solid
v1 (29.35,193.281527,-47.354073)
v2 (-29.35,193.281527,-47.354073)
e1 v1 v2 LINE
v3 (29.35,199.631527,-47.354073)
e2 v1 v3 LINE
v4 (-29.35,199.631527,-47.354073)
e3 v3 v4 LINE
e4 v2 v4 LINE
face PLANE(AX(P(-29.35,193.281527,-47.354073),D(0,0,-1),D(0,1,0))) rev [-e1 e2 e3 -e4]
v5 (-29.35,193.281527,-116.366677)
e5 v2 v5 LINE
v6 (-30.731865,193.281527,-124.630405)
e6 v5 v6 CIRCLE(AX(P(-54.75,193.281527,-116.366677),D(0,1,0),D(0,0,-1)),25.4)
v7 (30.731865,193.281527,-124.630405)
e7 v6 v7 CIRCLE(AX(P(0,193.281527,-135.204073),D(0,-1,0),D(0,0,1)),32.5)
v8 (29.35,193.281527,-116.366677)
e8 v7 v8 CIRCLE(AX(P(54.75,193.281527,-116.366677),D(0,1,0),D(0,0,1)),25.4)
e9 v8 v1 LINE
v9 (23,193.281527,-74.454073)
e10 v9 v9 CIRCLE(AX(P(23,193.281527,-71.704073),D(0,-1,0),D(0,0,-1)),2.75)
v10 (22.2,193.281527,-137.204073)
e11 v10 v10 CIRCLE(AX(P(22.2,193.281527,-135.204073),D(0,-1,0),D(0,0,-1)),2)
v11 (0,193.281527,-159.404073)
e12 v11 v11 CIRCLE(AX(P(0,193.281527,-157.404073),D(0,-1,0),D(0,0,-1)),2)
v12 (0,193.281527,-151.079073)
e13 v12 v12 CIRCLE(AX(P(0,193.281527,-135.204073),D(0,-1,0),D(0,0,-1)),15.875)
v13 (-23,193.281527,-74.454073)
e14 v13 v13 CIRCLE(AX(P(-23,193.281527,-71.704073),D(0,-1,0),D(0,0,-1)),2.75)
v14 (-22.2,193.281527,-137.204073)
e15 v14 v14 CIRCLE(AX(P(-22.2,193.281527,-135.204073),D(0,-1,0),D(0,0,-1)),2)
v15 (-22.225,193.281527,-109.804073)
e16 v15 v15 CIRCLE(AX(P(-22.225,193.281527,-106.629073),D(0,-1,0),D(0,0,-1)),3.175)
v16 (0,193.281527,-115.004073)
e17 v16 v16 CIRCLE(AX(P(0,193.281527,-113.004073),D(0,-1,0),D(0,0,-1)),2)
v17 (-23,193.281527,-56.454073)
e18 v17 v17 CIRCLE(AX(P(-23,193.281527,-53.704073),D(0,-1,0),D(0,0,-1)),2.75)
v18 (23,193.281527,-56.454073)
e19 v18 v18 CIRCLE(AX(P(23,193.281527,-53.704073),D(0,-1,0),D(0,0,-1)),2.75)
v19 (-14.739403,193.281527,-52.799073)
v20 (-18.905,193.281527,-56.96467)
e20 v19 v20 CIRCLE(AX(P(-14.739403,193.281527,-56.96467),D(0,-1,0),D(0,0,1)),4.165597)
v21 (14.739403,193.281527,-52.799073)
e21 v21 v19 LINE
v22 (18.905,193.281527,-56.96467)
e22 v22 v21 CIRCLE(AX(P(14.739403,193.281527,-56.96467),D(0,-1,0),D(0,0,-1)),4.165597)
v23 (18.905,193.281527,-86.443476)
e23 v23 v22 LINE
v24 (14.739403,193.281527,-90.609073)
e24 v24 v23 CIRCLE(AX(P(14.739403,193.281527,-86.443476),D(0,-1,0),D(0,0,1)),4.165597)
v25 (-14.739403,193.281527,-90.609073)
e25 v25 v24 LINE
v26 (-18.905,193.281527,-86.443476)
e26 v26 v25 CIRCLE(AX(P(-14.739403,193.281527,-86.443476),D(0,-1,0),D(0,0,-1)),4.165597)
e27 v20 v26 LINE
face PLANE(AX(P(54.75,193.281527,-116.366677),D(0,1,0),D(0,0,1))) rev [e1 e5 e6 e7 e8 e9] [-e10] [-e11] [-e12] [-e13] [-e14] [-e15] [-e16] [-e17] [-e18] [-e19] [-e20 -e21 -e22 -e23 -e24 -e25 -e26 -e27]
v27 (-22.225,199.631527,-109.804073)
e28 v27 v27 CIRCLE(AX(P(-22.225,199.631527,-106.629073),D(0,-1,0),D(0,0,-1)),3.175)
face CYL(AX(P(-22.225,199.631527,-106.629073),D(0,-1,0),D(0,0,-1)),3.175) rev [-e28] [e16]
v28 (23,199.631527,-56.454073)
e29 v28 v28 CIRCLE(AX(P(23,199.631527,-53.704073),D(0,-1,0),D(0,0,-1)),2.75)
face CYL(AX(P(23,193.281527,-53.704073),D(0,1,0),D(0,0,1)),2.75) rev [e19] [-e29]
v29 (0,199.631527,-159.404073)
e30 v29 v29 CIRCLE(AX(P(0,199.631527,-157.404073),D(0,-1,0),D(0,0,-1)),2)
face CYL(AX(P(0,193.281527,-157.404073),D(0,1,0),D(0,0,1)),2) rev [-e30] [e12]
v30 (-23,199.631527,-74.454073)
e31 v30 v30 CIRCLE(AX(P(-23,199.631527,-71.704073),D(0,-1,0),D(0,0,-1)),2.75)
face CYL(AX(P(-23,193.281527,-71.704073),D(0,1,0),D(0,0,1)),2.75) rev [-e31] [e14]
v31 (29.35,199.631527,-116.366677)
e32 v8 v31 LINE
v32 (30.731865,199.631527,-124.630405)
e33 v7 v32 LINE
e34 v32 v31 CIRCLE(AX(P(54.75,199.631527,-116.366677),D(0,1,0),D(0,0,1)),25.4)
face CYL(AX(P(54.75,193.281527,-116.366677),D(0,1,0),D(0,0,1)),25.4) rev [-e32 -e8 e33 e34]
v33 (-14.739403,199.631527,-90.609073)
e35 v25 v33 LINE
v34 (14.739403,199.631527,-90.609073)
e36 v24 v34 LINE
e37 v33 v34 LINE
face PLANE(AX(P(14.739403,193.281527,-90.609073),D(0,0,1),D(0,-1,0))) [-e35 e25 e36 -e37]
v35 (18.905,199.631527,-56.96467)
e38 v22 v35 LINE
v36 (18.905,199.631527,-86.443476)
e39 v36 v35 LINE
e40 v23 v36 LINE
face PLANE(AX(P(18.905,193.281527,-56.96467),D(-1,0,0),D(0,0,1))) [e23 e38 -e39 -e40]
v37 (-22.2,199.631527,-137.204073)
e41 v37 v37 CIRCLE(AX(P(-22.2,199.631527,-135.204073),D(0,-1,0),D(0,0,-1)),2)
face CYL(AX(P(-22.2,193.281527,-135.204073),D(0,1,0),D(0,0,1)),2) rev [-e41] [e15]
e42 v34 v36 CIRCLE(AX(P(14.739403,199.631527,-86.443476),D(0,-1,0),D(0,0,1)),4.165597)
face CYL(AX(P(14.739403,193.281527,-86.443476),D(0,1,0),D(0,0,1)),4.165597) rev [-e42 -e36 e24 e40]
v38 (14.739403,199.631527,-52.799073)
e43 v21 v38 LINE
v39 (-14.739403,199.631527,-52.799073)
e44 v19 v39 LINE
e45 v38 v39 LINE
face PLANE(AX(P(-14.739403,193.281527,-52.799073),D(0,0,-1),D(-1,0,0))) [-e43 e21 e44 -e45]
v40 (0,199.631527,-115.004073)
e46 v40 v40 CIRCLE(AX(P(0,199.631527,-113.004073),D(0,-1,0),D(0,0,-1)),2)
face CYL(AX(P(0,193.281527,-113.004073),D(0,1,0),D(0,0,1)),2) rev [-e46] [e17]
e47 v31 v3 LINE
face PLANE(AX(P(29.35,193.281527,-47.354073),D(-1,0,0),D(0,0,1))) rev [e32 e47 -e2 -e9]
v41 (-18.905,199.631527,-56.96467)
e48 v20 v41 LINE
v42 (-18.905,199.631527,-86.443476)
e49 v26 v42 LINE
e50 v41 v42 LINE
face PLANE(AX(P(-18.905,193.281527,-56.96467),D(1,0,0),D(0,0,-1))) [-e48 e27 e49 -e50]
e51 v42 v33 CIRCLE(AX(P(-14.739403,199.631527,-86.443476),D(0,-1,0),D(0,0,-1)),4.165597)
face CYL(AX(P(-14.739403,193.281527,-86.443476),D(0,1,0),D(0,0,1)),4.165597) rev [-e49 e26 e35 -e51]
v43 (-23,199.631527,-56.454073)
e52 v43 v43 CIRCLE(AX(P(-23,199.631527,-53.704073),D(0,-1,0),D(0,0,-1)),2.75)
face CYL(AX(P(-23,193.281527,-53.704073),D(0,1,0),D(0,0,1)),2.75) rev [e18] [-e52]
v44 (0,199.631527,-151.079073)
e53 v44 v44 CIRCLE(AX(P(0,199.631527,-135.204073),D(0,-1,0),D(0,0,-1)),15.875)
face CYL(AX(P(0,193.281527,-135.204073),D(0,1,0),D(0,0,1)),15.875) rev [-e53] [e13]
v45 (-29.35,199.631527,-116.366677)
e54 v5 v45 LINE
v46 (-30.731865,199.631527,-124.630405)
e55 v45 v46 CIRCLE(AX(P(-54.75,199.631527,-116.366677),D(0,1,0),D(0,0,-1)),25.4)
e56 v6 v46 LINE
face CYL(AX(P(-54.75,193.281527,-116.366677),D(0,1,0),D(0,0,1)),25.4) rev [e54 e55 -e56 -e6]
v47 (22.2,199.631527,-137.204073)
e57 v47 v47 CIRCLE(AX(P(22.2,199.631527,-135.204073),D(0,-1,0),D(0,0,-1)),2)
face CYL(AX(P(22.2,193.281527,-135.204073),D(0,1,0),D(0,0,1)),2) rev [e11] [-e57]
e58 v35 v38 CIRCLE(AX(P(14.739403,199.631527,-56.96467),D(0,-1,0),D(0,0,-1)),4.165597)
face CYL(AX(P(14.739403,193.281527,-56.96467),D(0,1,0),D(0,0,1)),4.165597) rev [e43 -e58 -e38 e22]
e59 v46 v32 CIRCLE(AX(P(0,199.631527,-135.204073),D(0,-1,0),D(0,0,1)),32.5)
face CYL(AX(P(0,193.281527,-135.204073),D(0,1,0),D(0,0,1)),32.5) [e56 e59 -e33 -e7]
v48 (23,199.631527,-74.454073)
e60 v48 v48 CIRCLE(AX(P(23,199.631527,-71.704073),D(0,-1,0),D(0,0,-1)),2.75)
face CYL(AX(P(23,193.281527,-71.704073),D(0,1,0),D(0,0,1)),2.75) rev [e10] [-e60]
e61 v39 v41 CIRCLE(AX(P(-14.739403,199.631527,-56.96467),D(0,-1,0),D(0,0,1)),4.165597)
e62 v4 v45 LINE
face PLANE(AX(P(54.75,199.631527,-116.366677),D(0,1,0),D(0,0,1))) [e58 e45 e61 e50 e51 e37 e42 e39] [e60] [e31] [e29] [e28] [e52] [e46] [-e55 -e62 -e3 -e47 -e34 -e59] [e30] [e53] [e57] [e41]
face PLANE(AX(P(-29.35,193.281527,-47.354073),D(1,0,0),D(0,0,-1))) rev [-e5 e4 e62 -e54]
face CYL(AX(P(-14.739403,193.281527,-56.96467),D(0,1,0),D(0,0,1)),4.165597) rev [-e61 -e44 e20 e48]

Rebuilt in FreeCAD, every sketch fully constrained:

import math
import FreeCAD as App
import Part
import Sketcher

V = App.Vector

doc = App.newDocument("Part")
params = doc.addObject("Spreadsheet::Sheet", "Params")
for row, (alias, value) in enumerate([
    ("sketch1_diameter", "4 mm"),
    ("sketch1_diameter2", "5.5 mm"),
    ("sketch1_radius", "25.4 mm"),
    ("sketch1_radius2", "32.5 mm"),
    ("sketch1_diameter3", "31.75 mm"),
    ("pad1_length", "6.35 mm"),
    ("sketch2_diameter", "6.35 mm"),
], start=1):
    params.set(f"A{row}", alias)
    params.set(f"B{row}", "=" + value)
    params.setAlias(f"B{row}", alias)

body = doc.addObject("PartDesign::Body", "Body")

sketch1 = body.newObject("Sketcher::SketchObject", "Sketch")
sketch1.AttachmentSupport = (doc.getObject("XZ_Plane"), [""])
sketch1.MapMode = "FlatFace"
sketch1.AttachmentOffset = App.Placement(V(0, 0, -199.631527), App.Rotation())
sketch1.addGeometry(Part.LineSegment(V(29.4, -47.4, 0), V(-29.4, -47.4, 0)), False)
sketch1.addGeometry(Part.LineSegment(V(-29.4, -47.4, 0), V(-29.4, -116.4, 0)), False)
sketch1.addGeometry(Part.ArcOfCircle(Part.Circle(V(-54.8, -116.4, 0), V(0, 0, 1), 25.4), math.radians(-18.99), math.radians(0)), False)
sketch1.addGeometry(Part.ArcOfCircle(Part.Circle(V(0, -135.2, 0), V(0, 0, 1), 32.5), math.radians(161), math.radians(379)), False)
sketch1.addGeometry(Part.ArcOfCircle(Part.Circle(V(54.8, -116.4, 0), V(0, 0, 1), 25.4), math.radians(-180), math.radians(-161.01)), False)
sketch1.addGeometry(Part.LineSegment(V(29.4, -116.4, 0), V(29.4, -47.4, 0)), False)
sketch1.addGeometry(Part.Circle(V(22.2, -135.2, 0), V(0, 0, 1), 2), False)
sketch1.addGeometry(Part.Circle(V(0, -157.4, 0), V(0, 0, 1), 2), False)
sketch1.addGeometry(Part.Circle(V(0, -135.2, 0), V(0, 0, 1), 15.9), False)
sketch1.addGeometry(Part.Circle(V(0, -113, 0), V(0, 0, 1), 2), False)
sketch1.addGeometry(Part.Circle(V(-22.2, -135.2, 0), V(0, 0, 1), 2), False)
sketch1.addGeometry(Part.Circle(V(23, -71.7, 0), V(0, 0, 1), 2.8), False)
sketch1.addGeometry(Part.Circle(V(23, -53.7, 0), V(0, 0, 1), 2.8), False)
sketch1.addGeometry(Part.LineSegment(V(-14.7, -52.8, 0), V(14.7, -52.8, 0)), False)
sketch1.addGeometry(Part.ArcOfCircle(Part.Circle(V(14.7, -57, 0), V(0, 0, 1), 4.2), math.radians(0), math.radians(90)), False)
sketch1.addGeometry(Part.LineSegment(V(18.9, -57, 0), V(18.9, -86.4, 0)), False)
sketch1.addGeometry(Part.ArcOfCircle(Part.Circle(V(14.7, -86.4, 0), V(0, 0, 1), 4.2), math.radians(-90), math.radians(0)), False)
sketch1.addGeometry(Part.LineSegment(V(14.7, -90.6, 0), V(-14.7, -90.6, 0)), False)
sketch1.addGeometry(Part.ArcOfCircle(Part.Circle(V(-14.7, -86.4, 0), V(0, 0, 1), 4.2), math.radians(-180), math.radians(-90)), False)
sketch1.addGeometry(Part.LineSegment(V(-18.9, -86.4, 0), V(-18.9, -57, 0)), False)
sketch1.addGeometry(Part.ArcOfCircle(Part.Circle(V(-14.7, -57, 0), V(0, 0, 1), 4.2), math.radians(90), math.radians(180)), False)
sketch1.addGeometry(Part.Circle(V(-23, -71.7, 0), V(0, 0, 1), 2.8), False)
sketch1.addGeometry(Part.Circle(V(-23, -53.7, 0), V(0, 0, 1), 2.8), False)
sketch1.addConstraint(Sketcher.Constraint("Coincident", 0, 2, 1, 1))
sketch1.addConstraint(Sketcher.Constraint("Tangent", 1, 2, 2, 2))
sketch1.addConstraint(Sketcher.Constraint("Tangent", 2, 1, 3, 1))
sketch1.addConstraint(Sketcher.Constraint("Tangent", 3, 2, 4, 2))
sketch1.addConstraint(Sketcher.Constraint("Tangent", 4, 1, 5, 1))
sketch1.addConstraint(Sketcher.Constraint("Coincident", 5, 2, 0, 1))
sketch1.addConstraint(Sketcher.Constraint("Tangent", 13, 2, 14, 2))
sketch1.addConstraint(Sketcher.Constraint("Tangent", 14, 1, 15, 1))
sketch1.addConstraint(Sketcher.Constraint("Tangent", 15, 2, 16, 2))
sketch1.addConstraint(Sketcher.Constraint("Tangent", 16, 1, 17, 1))
sketch1.addConstraint(Sketcher.Constraint("Tangent", 17, 2, 18, 2))
sketch1.addConstraint(Sketcher.Constraint("Tangent", 18, 1, 19, 1))
sketch1.addConstraint(Sketcher.Constraint("Tangent", 19, 2, 20, 2))
sketch1.addConstraint(Sketcher.Constraint("Tangent", 20, 1, 13, 1))
sketch1.addConstraint(Sketcher.Constraint("Horizontal", 0))
sketch1.addConstraint(Sketcher.Constraint("Vertical", 1))
sketch1.addConstraint(Sketcher.Constraint("Vertical", 5))
sketch1.addConstraint(Sketcher.Constraint("Horizontal", 13))
sketch1.addConstraint(Sketcher.Constraint("Vertical", 15))
sketch1.addConstraint(Sketcher.Constraint("Horizontal", 17))
sketch1.addConstraint(Sketcher.Constraint("Vertical", 19))
sketch1.addConstraint(Sketcher.Constraint("Coincident", 8, 3, 3, 3))
sketch1.addConstraint(Sketcher.Constraint("Equal", 2, 4))
sketch1.addConstraint(Sketcher.Constraint("Equal", 6, 7))
sketch1.addConstraint(Sketcher.Constraint("Equal", 7, 9))
sketch1.addConstraint(Sketcher.Constraint("Equal", 9, 10))
sketch1.addConstraint(Sketcher.Constraint("Equal", 11, 12))
sketch1.addConstraint(Sketcher.Constraint("Equal", 14, 16))
sketch1.addConstraint(Sketcher.Constraint("Equal", 16, 18))
sketch1.addConstraint(Sketcher.Constraint("Equal", 18, 20))
sketch1.addConstraint(Sketcher.Constraint("Equal", 12, 21))
sketch1.addConstraint(Sketcher.Constraint("Equal", 21, 22))
sketch1.addConstraint(Sketcher.Constraint("Symmetric", 2, 3, 4, 3, -2))
sketch1.addConstraint(Sketcher.Constraint("Symmetric", 6, 3, 10, 3, -2))
sketch1.addConstraint(Sketcher.Constraint("Symmetric", 11, 3, 21, 3, -2))
sketch1.addConstraint(Sketcher.Constraint("Symmetric", 12, 3, 22, 3, -2))
sketch1.addConstraint(Sketcher.Constraint("PointOnObject", 7, 3, -2))
sketch1.addConstraint(Sketcher.Constraint("PointOnObject", 9, 3, -2))
sketch1.addConstraint(Sketcher.Constraint("Horizontal", 3, 3, 6, 3))
sketch1.addConstraint(Sketcher.Constraint("Vertical", 11, 3, 12, 3))
sketch1.addConstraint(Sketcher.Constraint("Equal", 17, 15))
sketch1.addConstraint(Sketcher.Constraint("Diameter", 6, 4.0))
sketch1.addConstraint(Sketcher.Constraint("Diameter", 11, 5.5))
sketch1.addConstraint(Sketcher.Constraint("Radius", 2, 25.4))
sketch1.addConstraint(Sketcher.Constraint("Radius", 3, 32.5))
sketch1.addConstraint(Sketcher.Constraint("Diameter", 8, 31.75))
sketch1.addConstraint(Sketcher.Constraint("DistanceX", 0, 2, 0, 1, 58.7))
sketch1.addConstraint(Sketcher.Constraint("DistanceX", -1, 1, 11, 3, 23.0))
sketch1.addConstraint(Sketcher.Constraint("DistanceY", 11, 3, 12, 3, 18.0))
sketch1.addConstraint(Sketcher.Constraint("DistanceX", -1, 1, 6, 3, 22.2))
sketch1.addConstraint(Sketcher.Constraint("DistanceY", 7, 3, 3, 3, 22.2))
sketch1.addConstraint(Sketcher.Constraint("DistanceY", 3, 3, 9, 3, 22.2))
sketch1.addConstraint(Sketcher.Constraint("DistanceY", 9, 3, 11, 3, 41.3))
sketch1.addConstraint(Sketcher.Constraint("DistanceY", 22, 3, 0, 2, 6.35))
sketch1.addConstraint(Sketcher.Constraint("DistanceX", -1, 1, 14, 1, 18.905))
sketch1.addConstraint(Sketcher.Constraint("DistanceX", 18, 1, -1, 1, 18.905))
sketch1.addConstraint(Sketcher.Constraint("Radius", 14, 4.165597))
sketch1.addConstraint(Sketcher.Constraint("DistanceY", 12, 3, 13, 2, 0.905))
sketch1.addConstraint(Sketcher.Constraint("DistanceY", 14, 3, -1, 1, 56.96467))
sketch1.setExpression("Constraints[41]", "Params.sketch1_diameter")
sketch1.setExpression("Constraints[42]", "Params.sketch1_diameter2")
sketch1.setExpression("Constraints[43]", "Params.sketch1_radius")
sketch1.setExpression("Constraints[44]", "Params.sketch1_radius2")
sketch1.setExpression("Constraints[45]", "Params.sketch1_diameter3")
pad1 = body.newObject("PartDesign::Pad", "Pad")
pad1.Profile = sketch1
pad1.setExpression("Length", "Params.pad1_length")

sketch2 = body.newObject("Sketcher::SketchObject", "Sketch001")
sketch2.AttachmentSupport = (doc.getObject("XZ_Plane"), [""])
sketch2.MapMode = "FlatFace"
sketch2.AttachmentOffset = App.Placement(V(0, 0, -193.281527), App.Rotation())
sketch2.addGeometry(Part.Circle(V(-22.2, -106.6, 0), V(0, 0, 1), 3.2), False)
sketch2.addConstraint(Sketcher.Constraint("Diameter", 0, 6.35))
sketch2.addConstraint(Sketcher.Constraint("DistanceX", 0, 3, -1, 1, 22.225))
sketch2.addConstraint(Sketcher.Constraint("DistanceY", 0, 3, -1, 1, 106.629073))
sketch2.setExpression("Constraints[0]", "Params.sketch2_diameter")
pocket1 = body.newObject("PartDesign::Pocket", "Pocket")
pocket1.Profile = sketch2
pocket1.Type = "ThroughAll"

doc.recompute()
